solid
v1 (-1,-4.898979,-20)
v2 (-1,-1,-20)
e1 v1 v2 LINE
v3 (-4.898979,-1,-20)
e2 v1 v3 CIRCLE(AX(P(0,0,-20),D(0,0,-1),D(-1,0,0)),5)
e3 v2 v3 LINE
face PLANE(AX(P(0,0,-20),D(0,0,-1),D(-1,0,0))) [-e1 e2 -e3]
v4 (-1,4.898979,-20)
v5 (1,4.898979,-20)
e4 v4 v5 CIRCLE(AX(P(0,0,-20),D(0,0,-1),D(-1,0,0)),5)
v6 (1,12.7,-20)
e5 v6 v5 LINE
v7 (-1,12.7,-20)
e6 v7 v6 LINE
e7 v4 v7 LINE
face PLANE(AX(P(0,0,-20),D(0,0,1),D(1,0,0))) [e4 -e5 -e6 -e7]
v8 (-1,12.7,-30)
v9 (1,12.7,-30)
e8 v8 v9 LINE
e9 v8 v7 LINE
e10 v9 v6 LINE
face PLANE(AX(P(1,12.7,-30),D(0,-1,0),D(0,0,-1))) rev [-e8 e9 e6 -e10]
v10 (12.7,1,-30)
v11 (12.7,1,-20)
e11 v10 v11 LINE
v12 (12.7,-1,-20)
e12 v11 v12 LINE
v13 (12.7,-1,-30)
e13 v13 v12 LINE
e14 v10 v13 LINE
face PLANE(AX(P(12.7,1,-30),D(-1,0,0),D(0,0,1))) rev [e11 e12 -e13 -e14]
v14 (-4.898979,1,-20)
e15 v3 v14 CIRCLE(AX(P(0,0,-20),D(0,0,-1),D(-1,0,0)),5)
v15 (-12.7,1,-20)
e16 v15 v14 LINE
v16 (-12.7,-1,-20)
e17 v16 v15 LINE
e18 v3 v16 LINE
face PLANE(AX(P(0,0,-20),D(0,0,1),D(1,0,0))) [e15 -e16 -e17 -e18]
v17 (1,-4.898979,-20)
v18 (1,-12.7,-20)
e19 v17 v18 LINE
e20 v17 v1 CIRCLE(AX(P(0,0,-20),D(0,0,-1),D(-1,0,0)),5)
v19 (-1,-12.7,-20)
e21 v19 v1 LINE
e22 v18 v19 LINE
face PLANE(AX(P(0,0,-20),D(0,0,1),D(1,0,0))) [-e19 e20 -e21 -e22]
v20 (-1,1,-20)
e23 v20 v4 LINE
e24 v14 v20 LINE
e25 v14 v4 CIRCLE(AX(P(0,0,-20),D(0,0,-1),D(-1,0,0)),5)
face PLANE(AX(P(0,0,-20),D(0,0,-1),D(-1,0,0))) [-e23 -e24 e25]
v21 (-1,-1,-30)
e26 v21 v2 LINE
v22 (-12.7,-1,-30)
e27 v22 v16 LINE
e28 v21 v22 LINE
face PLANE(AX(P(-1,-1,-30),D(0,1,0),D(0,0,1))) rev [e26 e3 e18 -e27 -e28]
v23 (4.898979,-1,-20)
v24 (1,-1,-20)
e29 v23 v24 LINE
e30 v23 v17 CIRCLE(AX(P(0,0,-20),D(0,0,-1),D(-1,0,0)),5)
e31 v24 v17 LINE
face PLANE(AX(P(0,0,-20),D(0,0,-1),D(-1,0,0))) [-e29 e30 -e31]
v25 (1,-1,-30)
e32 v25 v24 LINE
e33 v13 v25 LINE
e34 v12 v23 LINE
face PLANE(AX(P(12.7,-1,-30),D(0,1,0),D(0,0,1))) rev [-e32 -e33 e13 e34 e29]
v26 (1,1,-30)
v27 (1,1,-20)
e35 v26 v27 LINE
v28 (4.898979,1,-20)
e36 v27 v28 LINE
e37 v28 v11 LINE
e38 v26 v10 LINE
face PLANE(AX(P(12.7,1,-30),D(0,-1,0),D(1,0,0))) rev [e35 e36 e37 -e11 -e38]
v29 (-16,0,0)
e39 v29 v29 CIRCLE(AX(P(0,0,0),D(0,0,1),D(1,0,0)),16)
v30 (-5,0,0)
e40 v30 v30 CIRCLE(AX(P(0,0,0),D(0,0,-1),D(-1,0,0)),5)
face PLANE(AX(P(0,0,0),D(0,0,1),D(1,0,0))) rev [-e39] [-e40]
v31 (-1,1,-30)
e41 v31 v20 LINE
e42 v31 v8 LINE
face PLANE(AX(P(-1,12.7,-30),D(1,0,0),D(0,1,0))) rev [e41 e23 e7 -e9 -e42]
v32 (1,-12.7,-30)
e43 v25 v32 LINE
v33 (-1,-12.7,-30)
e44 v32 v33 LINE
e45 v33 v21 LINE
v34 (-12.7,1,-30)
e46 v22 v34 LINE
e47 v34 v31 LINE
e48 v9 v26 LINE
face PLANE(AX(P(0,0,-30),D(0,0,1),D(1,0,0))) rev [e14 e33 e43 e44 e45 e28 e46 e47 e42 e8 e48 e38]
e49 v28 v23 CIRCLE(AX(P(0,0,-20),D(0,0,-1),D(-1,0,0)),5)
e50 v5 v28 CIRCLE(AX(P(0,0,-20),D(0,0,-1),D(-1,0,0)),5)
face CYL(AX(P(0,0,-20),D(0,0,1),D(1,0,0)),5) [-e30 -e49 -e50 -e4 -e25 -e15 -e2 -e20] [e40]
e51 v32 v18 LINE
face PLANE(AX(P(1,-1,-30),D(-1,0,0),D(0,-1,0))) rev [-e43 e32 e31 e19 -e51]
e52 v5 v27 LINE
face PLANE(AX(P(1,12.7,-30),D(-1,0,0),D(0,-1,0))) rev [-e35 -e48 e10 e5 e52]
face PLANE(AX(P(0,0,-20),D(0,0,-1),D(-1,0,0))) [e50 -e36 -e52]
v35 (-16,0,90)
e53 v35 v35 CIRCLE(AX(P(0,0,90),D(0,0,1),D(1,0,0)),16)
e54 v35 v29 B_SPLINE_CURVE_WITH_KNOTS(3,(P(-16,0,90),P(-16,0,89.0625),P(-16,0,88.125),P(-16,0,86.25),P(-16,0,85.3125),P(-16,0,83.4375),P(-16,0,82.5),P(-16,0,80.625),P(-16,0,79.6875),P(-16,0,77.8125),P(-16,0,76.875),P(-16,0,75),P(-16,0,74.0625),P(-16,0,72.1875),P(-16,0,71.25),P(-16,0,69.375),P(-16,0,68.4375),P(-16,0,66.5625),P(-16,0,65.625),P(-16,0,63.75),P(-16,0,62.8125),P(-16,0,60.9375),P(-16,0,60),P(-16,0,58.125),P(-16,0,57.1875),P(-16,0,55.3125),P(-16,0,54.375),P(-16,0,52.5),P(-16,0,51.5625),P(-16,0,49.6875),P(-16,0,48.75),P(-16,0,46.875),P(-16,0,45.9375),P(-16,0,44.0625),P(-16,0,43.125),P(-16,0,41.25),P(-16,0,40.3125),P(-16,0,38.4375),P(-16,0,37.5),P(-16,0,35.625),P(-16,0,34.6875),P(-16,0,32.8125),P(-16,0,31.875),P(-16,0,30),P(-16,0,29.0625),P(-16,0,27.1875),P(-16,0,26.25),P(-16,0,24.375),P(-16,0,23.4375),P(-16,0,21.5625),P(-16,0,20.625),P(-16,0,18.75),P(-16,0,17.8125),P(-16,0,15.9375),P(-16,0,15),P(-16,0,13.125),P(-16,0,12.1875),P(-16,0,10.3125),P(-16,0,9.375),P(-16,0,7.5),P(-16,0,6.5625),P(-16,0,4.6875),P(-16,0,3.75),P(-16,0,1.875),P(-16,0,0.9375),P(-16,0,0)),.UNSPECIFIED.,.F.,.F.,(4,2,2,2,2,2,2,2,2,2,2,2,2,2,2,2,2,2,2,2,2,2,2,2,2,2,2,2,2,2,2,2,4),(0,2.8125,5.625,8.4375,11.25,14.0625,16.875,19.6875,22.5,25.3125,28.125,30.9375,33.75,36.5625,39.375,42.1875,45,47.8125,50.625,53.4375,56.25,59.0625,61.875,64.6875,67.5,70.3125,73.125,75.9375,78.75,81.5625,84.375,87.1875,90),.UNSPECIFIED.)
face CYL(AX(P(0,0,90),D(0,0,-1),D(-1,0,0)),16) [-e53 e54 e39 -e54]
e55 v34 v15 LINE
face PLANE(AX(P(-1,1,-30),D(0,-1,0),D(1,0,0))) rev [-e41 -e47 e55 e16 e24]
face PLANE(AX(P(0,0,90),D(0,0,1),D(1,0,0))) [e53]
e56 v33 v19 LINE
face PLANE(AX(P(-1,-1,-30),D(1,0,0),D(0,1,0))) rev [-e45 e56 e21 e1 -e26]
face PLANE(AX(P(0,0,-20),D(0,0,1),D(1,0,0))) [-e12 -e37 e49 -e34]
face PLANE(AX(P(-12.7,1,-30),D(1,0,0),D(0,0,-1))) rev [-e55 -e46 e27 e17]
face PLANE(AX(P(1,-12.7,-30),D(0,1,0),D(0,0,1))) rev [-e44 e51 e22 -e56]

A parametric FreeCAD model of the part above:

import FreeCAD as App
import Part
import Sketcher
from FreeCAD import Vector


def add_polygon(sketch, points):
    """Adds a closed chain of lines whose ends are joined by coincident constraints."""
    first, n = sketch.GeometryCount, len(points)
    for a, b in zip(points, points[1:] + points[:1]):
        sketch.addGeometry(Part.LineSegment(App.Vector(*a, 0), App.Vector(*b, 0)), False)
    for i in range(n):
        sketch.addConstraint(Sketcher.Constraint("Coincident", first + i, 2, first + (i + 1) % n, 1))

doc = App.newDocument("Part")
body = doc.addObject("PartDesign::Body", "Body")

# Sketch on XY plane
sketch1 = body.newObject("Sketcher::SketchObject", "Sketch")
sketch1.AttachmentSupport = (doc.getObject("XY_Plane"), [""])
sketch1.MapMode = "FlatFace"
sketch1.addGeometry(Part.Circle(Vector(0, 0, 0), Vector(0, 0, 1), 16), False)
sketch1.addConstraint(Sketcher.Constraint("Coincident", 0, 3, -1, 1))
sketch1.addConstraint(Sketcher.Constraint("Diameter", 0, 32.0))
pad1 = body.newObject("PartDesign::Pad", "Pad")
pad1.Profile = sketch1
pad1.Length = 90

# Sketch on XY plane
sketch2 = body.newObject("Sketcher::SketchObject", "Sketch001")
sketch2.AttachmentSupport = (doc.getObject("XY_Plane"), [""])
sketch2.MapMode = "FlatFace"
sketch2.addGeometry(Part.Circle(Vector(0, 0, 0), Vector(0, 0, 1), 5), False)
sketch2.addConstraint(Sketcher.Constraint("Coincident", 0, 3, -1, 1))
sketch2.addConstraint(Sketcher.Constraint("Diameter", 0, 10.0))
pad2 = body.newObject("PartDesign::Pad", "Pad001")
pad2.Profile = sketch2
pad2.Length = 20
pad2.Reversed = True

# Sketch on XY plane
sketch3 = body.newObject("Sketcher::SketchObject", "Sketch002")
sketch3.AttachmentSupport = (doc.getObject("XY_Plane"), [""])
sketch3.MapMode = "FlatFace"
sketch3.AttachmentOffset = App.Placement(Vector(0, 0, -20), App.Rotation())
add_polygon(sketch3, [(-12.7, 1), (-1, 1), (-1, 12.7), (1, 12.7), (1, 1), (12.7, 1), (12.7, -1), (1, -1), (1, -12.7), (-1, -12.7), (-1, -1), (-12.7, -1)])  # lines 0-11
sketch3.addConstraint(Sketcher.Constraint("Horizontal", 0))
sketch3.addConstraint(Sketcher.Constraint("Vertical", 1))
sketch3.addConstraint(Sketcher.Constraint("Horizontal", 2))
sketch3.addConstraint(Sketcher.Constraint("Vertical", 3))
sketch3.addConstraint(Sketcher.Constraint("Horizontal", 4))
sketch3.addConstraint(Sketcher.Constraint("Vertical", 5))
sketch3.addConstraint(Sketcher.Constraint("Horizontal", 6))
sketch3.addConstraint(Sketcher.Constraint("Vertical", 7))
sketch3.addConstraint(Sketcher.Constraint("Horizontal", 8))
sketch3.addConstraint(Sketcher.Constraint("Vertical", 9))
sketch3.addConstraint(Sketcher.Constraint("Horizontal", 10))
sketch3.addConstraint(Sketcher.Constraint("Vertical", 11))
sketch3.addConstraint(Sketcher.Constraint("Symmetric", 0, 2, 6, 2, -1, 1))
sketch3.addConstraint(Sketcher.Constraint("Symmetric", 2, 2, 8, 2, -1, 1))
sketch3.addConstraint(Sketcher.Constraint("Symmetric", 4, 2, 10, 2, -1, 1))
sketch3.addConstraint(Sketcher.Constraint("Symmetric", 0, 2, 3, 2, -2))
sketch3.addConstraint(Sketcher.Constraint("Equal", 10, 1))
sketch3.addConstraint(Sketcher.Constraint("Equal", 8, 5))
sketch3.addConstraint(Sketcher.Constraint("DistanceX", 2, 1, 2, 2, 2.0))
sketch3.addConstraint(Sketcher.Constraint("DistanceX", 0, 1, 0, 2, 11.7))
pad3 = body.newObject("PartDesign::Pad", "Pad002")
pad3.Profile = sketch3
pad3.Length = 10
pad3.Reversed = True

doc.recompute()
